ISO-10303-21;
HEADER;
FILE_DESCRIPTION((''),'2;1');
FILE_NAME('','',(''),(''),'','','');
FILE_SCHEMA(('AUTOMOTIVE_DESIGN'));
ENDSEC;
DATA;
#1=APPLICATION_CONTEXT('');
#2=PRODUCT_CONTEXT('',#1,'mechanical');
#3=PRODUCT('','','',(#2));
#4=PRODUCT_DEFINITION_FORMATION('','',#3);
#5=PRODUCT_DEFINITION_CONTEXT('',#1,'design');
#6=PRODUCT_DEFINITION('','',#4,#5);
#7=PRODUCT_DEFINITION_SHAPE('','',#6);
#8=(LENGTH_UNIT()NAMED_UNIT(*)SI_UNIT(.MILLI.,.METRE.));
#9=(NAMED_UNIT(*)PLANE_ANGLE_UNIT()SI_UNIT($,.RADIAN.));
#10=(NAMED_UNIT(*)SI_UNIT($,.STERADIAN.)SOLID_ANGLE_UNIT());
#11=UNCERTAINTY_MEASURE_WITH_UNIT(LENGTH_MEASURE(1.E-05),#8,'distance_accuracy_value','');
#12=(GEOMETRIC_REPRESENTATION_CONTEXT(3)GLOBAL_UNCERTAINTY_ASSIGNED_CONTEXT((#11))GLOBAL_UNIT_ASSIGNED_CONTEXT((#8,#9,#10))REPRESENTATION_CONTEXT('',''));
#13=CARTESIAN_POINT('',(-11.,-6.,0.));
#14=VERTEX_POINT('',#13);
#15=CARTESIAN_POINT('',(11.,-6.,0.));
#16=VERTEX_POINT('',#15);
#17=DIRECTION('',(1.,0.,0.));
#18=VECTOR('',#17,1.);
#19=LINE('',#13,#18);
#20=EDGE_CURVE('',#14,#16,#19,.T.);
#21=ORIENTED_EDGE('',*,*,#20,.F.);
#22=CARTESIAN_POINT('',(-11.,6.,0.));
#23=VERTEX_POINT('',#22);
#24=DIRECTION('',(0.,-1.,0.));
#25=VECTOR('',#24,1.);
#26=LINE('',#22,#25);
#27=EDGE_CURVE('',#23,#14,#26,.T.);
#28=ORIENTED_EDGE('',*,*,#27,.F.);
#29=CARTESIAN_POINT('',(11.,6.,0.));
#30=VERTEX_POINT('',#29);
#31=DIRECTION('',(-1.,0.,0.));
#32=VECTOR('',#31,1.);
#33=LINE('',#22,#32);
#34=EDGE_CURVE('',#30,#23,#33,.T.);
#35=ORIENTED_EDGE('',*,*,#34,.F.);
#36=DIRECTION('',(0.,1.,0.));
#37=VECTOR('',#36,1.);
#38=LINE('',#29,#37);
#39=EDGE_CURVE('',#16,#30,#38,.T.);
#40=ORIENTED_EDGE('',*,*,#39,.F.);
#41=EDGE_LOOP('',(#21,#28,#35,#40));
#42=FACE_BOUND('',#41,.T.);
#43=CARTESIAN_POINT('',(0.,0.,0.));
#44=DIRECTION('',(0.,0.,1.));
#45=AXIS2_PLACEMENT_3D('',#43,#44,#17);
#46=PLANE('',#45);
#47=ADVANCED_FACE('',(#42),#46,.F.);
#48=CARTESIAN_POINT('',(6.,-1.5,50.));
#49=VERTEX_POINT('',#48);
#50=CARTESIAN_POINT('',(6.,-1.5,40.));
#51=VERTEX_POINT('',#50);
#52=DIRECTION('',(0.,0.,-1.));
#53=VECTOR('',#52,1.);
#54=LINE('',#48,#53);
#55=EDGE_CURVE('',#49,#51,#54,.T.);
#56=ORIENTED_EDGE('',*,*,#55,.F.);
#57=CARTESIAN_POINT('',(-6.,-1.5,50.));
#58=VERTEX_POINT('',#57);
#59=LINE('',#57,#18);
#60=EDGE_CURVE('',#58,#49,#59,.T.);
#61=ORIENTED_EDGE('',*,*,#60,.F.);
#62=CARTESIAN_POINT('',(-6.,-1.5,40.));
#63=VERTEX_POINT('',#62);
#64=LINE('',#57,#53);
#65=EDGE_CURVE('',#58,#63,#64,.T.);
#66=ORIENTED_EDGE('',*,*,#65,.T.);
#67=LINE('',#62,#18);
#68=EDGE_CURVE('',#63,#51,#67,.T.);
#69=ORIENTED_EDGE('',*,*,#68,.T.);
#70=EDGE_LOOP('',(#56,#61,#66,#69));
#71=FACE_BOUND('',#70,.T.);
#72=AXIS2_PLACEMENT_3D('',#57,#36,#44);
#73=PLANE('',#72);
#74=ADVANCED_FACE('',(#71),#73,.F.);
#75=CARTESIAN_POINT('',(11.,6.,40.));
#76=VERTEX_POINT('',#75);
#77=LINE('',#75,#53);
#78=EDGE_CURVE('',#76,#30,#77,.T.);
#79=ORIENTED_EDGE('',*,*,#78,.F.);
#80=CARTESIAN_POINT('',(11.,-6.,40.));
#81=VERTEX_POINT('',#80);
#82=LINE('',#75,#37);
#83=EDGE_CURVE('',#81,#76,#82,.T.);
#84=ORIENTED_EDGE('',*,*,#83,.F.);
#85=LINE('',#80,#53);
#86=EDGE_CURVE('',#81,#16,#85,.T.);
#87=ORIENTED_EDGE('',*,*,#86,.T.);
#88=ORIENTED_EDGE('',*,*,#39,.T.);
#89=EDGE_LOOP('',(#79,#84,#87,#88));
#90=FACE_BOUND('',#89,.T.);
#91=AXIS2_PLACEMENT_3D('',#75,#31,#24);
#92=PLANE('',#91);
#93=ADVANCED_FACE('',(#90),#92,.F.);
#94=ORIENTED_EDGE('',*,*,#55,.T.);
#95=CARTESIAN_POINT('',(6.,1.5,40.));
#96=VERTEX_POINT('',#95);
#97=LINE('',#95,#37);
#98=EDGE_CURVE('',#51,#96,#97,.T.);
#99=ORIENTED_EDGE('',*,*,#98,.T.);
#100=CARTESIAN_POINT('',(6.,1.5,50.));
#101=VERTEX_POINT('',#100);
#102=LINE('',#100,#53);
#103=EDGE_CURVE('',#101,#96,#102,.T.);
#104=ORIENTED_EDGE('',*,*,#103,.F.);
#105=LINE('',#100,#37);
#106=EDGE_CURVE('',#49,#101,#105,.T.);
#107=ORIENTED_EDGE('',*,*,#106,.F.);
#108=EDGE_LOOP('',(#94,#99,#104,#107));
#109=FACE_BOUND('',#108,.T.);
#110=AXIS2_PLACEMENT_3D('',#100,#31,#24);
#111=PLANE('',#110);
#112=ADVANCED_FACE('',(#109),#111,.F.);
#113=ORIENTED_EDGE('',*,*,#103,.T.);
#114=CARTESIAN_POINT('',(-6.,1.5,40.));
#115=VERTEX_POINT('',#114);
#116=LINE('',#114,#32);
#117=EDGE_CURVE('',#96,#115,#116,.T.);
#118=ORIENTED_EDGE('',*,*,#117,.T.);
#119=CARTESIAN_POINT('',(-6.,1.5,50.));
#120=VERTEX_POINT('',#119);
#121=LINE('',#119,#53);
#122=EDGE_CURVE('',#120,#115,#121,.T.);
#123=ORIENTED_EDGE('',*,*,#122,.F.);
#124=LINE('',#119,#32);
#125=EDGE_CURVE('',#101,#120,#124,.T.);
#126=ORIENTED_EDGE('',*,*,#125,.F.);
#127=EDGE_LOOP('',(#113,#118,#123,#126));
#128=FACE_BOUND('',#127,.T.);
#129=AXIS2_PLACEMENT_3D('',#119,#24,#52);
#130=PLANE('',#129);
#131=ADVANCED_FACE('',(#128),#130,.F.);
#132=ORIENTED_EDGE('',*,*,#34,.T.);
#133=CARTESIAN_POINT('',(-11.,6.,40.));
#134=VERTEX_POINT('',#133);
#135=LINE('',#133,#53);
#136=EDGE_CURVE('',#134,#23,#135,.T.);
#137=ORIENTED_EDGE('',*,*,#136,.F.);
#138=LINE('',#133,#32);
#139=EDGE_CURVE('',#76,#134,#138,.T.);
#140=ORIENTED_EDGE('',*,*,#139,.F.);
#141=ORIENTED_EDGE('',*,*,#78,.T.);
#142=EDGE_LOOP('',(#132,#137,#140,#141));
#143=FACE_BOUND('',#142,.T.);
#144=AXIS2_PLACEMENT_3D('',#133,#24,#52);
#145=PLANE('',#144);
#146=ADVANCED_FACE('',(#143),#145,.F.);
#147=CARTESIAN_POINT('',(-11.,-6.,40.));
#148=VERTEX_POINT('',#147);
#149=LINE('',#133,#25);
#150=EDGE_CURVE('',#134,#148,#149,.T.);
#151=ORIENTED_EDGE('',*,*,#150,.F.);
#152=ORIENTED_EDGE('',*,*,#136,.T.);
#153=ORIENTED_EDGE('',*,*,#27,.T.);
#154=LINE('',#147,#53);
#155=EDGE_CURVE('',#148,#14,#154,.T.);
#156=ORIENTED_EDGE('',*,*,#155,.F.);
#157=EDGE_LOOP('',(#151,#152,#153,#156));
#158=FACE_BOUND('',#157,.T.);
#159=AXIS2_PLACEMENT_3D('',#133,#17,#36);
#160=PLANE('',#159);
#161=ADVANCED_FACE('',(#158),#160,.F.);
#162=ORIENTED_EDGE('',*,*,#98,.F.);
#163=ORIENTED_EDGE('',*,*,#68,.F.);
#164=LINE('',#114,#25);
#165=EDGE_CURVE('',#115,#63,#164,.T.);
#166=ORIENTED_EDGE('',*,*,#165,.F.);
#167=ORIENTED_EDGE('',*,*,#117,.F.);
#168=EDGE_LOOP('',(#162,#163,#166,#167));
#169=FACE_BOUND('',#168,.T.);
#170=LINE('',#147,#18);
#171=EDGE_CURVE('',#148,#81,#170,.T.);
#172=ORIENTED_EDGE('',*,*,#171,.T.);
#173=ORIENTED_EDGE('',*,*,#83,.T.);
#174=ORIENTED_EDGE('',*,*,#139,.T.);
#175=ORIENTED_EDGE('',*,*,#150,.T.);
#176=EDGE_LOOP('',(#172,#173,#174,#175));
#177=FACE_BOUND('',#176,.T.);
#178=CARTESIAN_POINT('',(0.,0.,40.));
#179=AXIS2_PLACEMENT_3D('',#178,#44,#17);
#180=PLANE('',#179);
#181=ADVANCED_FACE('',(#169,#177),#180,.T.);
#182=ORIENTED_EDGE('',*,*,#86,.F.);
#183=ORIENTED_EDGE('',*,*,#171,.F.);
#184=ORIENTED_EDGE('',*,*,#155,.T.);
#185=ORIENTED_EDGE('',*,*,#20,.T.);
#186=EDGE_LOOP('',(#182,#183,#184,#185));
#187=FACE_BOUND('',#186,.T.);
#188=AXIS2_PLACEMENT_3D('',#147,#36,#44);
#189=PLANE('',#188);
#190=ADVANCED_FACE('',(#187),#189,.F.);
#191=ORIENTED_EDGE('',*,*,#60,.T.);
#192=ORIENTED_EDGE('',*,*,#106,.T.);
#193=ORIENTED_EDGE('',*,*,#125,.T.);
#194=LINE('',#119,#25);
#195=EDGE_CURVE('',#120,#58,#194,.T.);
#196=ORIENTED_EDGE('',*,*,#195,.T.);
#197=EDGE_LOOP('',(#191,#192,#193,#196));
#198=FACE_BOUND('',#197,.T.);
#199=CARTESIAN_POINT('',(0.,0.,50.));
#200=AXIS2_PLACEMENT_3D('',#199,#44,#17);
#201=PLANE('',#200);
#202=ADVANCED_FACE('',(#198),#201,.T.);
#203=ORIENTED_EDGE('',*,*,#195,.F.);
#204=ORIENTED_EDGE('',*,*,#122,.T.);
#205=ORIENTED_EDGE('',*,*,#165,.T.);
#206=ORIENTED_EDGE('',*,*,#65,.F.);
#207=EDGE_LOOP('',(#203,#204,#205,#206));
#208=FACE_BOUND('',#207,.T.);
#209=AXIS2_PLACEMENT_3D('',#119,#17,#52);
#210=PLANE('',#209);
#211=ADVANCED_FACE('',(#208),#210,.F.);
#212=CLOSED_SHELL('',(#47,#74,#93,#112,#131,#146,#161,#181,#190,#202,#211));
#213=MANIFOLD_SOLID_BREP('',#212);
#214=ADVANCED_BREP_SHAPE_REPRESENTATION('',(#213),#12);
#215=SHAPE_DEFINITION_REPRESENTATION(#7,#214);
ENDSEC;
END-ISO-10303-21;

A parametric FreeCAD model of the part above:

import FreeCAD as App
import Part
import Sketcher
from FreeCAD import Vector
Q = App.Units.Quantity

doc = App.newDocument("Part")
body = doc.addObject("PartDesign::Body", "Body")

# Sketch on XY plane
sketch1 = body.newObject("Sketcher::SketchObject", "Sketch")
sketch1.AttachmentSupport = (doc.getObject("XY_Plane"), [""])
sketch1.MapMode = "FlatFace"
sketch1.addGeometry([
    Part.LineSegment(Vector(-11, 6, 0), Vector(-11, -6, 0)),
    Part.LineSegment(Vector(-11, -6, 0), Vector(11, -6, 0)),
    Part.LineSegment(Vector(11, -6, 0), Vector(11, 6, 0)),
    Part.LineSegment(Vector(11, 6, 0), Vector(-11, 6, 0)),
], False)
sketch1.addConstraint([
    Sketcher.Constraint("Coincident", 0, 2, 1, 1),
    Sketcher.Constraint("Coincident", 1, 2, 2, 1),
    Sketcher.Constraint("Coincident", 2, 2, 3, 1),
    Sketcher.Constraint("Coincident", 3, 2, 0, 1),
    Sketcher.Constraint("Vertical", 0),
    Sketcher.Constraint("Horizontal", 1),
    Sketcher.Constraint("Vertical", 2),
    Sketcher.Constraint("Horizontal", 3),
    Sketcher.Constraint("Symmetric", 0, 2, 2, 2, -1, 1),
    Sketcher.Constraint("DistanceX", 1, 1, 1, 2, Q("22 mm")),
    Sketcher.Constraint("DistanceY", 0, 2, 0, 1, Q("12 mm")),
])
pad1 = body.newObject("PartDesign::Pad", "Pad")
pad1.Profile = sketch1
pad1.Length = 40

# Sketch on XY plane
sketch2 = body.newObject("Sketcher::SketchObject", "Sketch001")
sketch2.AttachmentSupport = (doc.getObject("XY_Plane"), [""])
sketch2.MapMode = "FlatFace"
sketch2.AttachmentOffset = App.Placement(Vector(0, 0, 40), App.Rotation())
sketch2.addGeometry([
    Part.LineSegment(Vector(-6, 1.5, 0), Vector(-6, -1.5, 0)),
    Part.LineSegment(Vector(-6, -1.5, 0), Vector(6, -1.5, 0)),
    Part.LineSegment(Vector(6, -1.5, 0), Vector(6, 1.5, 0)),
    Part.LineSegment(Vector(6, 1.5, 0), Vector(-6, 1.5, 0)),
], False)
sketch2.addConstraint([
    Sketcher.Constraint("Coincident", 0, 2, 1, 1),
    Sketcher.Constraint("Coincident", 1, 2, 2, 1),
    Sketcher.Constraint("Coincident", 2, 2, 3, 1),
    Sketcher.Constraint("Coincident", 3, 2, 0, 1),
    Sketcher.Constraint("Vertical", 0),
    Sketcher.Constraint("Horizontal", 1),
    Sketcher.Constraint("Vertical", 2),
    Sketcher.Constraint("Horizontal", 3),
    Sketcher.Constraint("Symmetric", 0, 2, 2, 2, -1, 1),
    Sketcher.Constraint("DistanceX", 1, 1, 1, 2, Q("12 mm")),
    Sketcher.Constraint("DistanceY", 0, 2, 0, 1, Q("3 mm")),
])
pad2 = body.newObject("PartDesign::Pad", "Pad001")
pad2.Profile = sketch2
pad2.Length = 10

doc.recompute()
